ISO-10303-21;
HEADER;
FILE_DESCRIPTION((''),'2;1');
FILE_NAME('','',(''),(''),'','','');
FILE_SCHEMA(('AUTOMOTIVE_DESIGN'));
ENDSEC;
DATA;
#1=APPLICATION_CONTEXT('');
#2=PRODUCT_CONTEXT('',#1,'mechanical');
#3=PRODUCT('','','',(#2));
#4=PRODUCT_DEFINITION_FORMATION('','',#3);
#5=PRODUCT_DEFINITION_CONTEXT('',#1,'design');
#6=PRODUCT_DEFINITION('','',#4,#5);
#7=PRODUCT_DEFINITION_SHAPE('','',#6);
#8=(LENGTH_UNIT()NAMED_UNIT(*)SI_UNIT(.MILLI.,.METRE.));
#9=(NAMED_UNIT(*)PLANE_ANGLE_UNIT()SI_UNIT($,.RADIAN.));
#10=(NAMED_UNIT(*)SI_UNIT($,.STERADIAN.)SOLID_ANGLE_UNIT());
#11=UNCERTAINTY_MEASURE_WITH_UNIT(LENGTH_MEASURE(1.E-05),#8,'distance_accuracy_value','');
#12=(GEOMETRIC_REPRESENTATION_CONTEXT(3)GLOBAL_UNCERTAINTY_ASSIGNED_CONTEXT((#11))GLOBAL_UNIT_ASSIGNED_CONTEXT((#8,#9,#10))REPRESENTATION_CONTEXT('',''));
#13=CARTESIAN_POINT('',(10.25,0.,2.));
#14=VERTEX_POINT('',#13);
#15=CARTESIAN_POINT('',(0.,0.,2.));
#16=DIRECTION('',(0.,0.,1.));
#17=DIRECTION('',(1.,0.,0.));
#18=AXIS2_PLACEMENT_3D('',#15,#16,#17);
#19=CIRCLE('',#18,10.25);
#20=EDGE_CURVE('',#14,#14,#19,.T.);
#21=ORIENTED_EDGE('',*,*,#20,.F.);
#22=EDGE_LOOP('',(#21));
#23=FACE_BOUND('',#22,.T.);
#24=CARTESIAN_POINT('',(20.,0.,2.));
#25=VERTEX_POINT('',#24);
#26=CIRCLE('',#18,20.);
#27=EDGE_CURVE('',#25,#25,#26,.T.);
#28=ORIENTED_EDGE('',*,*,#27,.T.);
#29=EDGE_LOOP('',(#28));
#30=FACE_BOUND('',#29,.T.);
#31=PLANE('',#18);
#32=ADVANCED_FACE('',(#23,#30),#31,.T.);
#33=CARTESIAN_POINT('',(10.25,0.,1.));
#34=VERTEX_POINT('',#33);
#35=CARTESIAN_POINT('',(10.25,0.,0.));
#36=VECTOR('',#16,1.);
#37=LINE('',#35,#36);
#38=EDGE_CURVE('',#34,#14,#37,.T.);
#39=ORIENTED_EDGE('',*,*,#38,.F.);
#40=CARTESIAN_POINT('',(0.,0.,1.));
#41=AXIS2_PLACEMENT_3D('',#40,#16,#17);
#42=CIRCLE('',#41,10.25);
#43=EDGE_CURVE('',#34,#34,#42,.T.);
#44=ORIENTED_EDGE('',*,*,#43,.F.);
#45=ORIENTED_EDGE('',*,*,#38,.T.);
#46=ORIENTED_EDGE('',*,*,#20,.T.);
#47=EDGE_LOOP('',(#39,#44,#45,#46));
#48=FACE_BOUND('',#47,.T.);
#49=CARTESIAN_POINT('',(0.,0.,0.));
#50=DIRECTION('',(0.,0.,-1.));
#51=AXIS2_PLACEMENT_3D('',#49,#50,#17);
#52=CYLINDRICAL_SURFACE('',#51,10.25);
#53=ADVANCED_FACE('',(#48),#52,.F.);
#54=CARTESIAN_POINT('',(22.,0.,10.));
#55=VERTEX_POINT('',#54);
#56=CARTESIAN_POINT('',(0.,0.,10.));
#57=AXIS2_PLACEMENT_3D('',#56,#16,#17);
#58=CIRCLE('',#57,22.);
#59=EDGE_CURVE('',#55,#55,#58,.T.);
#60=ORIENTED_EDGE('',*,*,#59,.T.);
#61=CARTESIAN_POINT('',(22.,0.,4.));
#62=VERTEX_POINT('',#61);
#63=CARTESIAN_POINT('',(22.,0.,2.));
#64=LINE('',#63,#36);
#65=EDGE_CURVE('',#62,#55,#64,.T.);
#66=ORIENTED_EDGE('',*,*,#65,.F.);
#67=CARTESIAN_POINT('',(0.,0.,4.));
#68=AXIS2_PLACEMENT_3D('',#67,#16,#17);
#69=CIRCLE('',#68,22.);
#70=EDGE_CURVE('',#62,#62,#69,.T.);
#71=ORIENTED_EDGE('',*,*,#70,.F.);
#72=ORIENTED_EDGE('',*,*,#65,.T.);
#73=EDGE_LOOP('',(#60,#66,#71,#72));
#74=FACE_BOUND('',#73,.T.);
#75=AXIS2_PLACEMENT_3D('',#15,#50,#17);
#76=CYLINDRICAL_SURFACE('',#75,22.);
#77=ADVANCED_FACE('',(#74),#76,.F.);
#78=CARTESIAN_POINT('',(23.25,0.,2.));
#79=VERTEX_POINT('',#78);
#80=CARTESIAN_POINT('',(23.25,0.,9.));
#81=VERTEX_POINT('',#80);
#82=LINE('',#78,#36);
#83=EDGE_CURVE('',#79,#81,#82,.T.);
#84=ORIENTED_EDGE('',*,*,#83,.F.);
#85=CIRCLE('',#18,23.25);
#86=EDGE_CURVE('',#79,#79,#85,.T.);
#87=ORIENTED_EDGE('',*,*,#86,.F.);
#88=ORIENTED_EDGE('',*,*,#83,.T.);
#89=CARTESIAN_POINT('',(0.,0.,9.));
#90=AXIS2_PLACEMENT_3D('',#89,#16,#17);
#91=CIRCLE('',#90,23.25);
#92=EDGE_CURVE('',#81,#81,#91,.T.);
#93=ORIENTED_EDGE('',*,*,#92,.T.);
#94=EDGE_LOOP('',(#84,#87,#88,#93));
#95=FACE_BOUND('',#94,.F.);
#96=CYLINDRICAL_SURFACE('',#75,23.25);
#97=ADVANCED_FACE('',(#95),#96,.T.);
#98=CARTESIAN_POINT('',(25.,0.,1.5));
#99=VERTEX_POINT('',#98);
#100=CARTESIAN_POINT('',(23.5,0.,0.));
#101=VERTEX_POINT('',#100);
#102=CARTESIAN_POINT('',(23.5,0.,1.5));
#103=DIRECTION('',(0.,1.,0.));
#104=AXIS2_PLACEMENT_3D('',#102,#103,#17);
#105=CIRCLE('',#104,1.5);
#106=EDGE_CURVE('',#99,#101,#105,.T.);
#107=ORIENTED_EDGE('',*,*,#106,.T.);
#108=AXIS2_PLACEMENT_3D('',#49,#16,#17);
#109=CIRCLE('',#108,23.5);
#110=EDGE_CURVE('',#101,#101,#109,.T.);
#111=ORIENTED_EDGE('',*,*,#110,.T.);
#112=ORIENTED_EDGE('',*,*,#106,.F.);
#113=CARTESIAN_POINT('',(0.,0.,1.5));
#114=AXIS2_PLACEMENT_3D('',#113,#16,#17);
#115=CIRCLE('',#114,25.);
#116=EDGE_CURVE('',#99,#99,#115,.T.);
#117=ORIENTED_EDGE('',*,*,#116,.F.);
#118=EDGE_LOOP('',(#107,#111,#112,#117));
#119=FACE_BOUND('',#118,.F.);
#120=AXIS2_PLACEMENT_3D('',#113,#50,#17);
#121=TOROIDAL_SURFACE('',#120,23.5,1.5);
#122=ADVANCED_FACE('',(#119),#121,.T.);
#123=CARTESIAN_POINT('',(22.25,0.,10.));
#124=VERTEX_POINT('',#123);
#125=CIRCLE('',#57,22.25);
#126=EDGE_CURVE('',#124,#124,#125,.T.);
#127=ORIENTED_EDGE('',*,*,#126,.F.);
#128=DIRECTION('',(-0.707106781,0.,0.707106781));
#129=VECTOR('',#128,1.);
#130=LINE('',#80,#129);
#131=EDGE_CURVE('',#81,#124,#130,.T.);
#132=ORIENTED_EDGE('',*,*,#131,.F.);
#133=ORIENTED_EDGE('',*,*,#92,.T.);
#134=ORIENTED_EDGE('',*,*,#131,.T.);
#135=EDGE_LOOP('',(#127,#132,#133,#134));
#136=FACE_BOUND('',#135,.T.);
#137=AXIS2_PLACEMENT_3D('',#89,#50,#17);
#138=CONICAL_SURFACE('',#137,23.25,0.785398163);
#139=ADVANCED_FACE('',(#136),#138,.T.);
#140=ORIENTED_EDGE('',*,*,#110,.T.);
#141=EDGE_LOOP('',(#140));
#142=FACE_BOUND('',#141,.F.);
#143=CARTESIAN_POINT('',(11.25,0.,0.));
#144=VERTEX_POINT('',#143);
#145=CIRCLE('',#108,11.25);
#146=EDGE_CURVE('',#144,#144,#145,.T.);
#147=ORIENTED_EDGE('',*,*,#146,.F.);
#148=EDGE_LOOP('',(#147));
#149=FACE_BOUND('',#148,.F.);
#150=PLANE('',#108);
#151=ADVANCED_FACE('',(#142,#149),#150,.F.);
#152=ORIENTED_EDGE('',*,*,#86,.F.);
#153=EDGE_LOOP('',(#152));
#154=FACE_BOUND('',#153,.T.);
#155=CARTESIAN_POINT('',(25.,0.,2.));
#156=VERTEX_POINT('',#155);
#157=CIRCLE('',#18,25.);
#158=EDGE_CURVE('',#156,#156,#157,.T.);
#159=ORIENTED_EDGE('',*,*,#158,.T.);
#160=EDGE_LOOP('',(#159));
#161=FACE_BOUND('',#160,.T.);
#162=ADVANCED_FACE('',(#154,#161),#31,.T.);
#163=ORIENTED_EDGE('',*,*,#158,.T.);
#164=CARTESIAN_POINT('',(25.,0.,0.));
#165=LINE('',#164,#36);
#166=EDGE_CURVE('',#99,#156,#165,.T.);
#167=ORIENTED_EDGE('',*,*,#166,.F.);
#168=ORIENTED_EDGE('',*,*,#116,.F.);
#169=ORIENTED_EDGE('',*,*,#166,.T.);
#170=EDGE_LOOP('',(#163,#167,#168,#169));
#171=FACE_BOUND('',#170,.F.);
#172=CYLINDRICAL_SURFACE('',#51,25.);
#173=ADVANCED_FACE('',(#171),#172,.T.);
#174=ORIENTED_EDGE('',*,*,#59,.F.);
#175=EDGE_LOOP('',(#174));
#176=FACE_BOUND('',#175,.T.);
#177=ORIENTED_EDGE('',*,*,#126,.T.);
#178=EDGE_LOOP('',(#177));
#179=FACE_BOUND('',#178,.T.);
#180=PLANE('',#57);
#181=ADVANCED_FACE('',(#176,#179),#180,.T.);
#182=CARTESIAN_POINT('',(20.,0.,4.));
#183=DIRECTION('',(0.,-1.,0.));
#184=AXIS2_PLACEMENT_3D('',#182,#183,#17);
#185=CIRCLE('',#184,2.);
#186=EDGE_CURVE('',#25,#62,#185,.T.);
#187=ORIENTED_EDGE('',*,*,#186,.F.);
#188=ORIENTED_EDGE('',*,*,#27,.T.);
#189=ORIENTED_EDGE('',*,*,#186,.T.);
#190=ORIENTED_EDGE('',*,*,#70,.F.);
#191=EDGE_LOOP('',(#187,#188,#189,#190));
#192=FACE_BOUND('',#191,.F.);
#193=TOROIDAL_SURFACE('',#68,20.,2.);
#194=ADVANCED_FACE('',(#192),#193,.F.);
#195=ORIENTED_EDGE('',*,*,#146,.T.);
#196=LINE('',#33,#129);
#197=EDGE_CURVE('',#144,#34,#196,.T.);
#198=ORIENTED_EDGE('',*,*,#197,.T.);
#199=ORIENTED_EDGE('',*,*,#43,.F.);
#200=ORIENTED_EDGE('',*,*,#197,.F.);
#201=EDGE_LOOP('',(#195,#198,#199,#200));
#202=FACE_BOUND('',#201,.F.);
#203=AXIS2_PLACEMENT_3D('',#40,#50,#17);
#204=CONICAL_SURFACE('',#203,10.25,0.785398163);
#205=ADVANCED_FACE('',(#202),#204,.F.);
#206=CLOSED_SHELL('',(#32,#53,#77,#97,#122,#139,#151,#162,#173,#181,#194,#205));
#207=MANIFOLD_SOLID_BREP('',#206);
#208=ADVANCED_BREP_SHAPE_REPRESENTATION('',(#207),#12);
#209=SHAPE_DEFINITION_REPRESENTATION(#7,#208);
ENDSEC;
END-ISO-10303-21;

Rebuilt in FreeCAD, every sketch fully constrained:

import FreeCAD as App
import Part
import Sketcher
from FreeCAD import Vector


def edges_at(feature, points):
    """Names of the edges that pass closest to the given points."""
    edges = feature.Shape.Edges
    near = lambda p: min(range(len(edges)), key=lambda i: edges[i].distToShape(Part.Vertex(*p))[0])
    return sorted({f"Edge{near(p) + 1}" for p in points})

doc = App.newDocument("Part")
body = doc.addObject("PartDesign::Body", "Body")

# Sketch on XY plane
sketch1 = doc.addObject("Sketcher::SketchObject", "Sketch")
body.addObject(sketch1)
sketch1.AttachmentSupport = (doc.XY_Plane, [""])
sketch1.MapMode = "FlatFace"
sketch1.addGeometry([
    Part.Circle(Vector(0, 0, 0), Vector(0, 0, 1), 25),
    Part.Circle(Vector(0, 0, 0), Vector(0, 0, 1), 10.25),
], False)
sketch1.addConstraint([
    Sketcher.Constraint("Coincident", 0, 3, -1, 1),
    Sketcher.Constraint("Coincident", 1, 3, -1, 1),
    Sketcher.Constraint("Diameter", 0, 50.0),
    Sketcher.Constraint("Diameter", 1, 20.5),
])
pad1 = doc.addObject("PartDesign::Pad", "Pad")
body.addObject(pad1)
pad1.Profile = sketch1
pad1.Length = 2

# Sketch on XY plane
sketch2 = doc.addObject("Sketcher::SketchObject", "Sketch001")
body.addObject(sketch2)
sketch2.AttachmentSupport = (doc.XY_Plane, [""])
sketch2.MapMode = "FlatFace"
sketch2.AttachmentOffset = App.Placement(Vector(0, 0, 2), App.Rotation())
sketch2.addGeometry([
    Part.Circle(Vector(0, 0, 0), Vector(0, 0, 1), 23.25),
    Part.Circle(Vector(0, 0, 0), Vector(0, 0, 1), 22),
], False)
sketch2.addConstraint([
    Sketcher.Constraint("Coincident", 0, 3, -1, 1),
    Sketcher.Constraint("Coincident", 1, 3, -1, 1),
    Sketcher.Constraint("Diameter", 1, 44.0),
    Sketcher.Constraint("Diameter", 0, 46.5),
])
pad2 = doc.addObject("PartDesign::Pad", "Pad001")
body.addObject(pad2)
pad2.Profile = sketch2
pad2.Length = 8
doc.recompute()

chamfer = doc.addObject("PartDesign::Chamfer", "Chamfer")
body.addObject(chamfer)
chamfer.Base = (pad2, edges_at(pad2, [(-23.25, 0, 10)]))
chamfer.Size = 1
doc.recompute()

fillet = doc.addObject("PartDesign::Fillet", "Fillet")
body.addObject(fillet)
fillet.Base = (chamfer, edges_at(chamfer, [(-25, 0, 0)]))
fillet.Radius = 1.5
doc.recompute()

chamfer2 = doc.addObject("PartDesign::Chamfer", "Chamfer001")
body.addObject(chamfer2)
chamfer2.Base = (fillet, edges_at(fillet, [(-10.25, 0, 0)]))
chamfer2.Size = 1
doc.recompute()

fillet2 = doc.addObject("PartDesign::Fillet", "Fillet001")
body.addObject(fillet2)
fillet2.Base = (chamfer2, edges_at(chamfer2, [(-22, 0, 2)]))
fillet2.Radius = 2

doc.recompute()
